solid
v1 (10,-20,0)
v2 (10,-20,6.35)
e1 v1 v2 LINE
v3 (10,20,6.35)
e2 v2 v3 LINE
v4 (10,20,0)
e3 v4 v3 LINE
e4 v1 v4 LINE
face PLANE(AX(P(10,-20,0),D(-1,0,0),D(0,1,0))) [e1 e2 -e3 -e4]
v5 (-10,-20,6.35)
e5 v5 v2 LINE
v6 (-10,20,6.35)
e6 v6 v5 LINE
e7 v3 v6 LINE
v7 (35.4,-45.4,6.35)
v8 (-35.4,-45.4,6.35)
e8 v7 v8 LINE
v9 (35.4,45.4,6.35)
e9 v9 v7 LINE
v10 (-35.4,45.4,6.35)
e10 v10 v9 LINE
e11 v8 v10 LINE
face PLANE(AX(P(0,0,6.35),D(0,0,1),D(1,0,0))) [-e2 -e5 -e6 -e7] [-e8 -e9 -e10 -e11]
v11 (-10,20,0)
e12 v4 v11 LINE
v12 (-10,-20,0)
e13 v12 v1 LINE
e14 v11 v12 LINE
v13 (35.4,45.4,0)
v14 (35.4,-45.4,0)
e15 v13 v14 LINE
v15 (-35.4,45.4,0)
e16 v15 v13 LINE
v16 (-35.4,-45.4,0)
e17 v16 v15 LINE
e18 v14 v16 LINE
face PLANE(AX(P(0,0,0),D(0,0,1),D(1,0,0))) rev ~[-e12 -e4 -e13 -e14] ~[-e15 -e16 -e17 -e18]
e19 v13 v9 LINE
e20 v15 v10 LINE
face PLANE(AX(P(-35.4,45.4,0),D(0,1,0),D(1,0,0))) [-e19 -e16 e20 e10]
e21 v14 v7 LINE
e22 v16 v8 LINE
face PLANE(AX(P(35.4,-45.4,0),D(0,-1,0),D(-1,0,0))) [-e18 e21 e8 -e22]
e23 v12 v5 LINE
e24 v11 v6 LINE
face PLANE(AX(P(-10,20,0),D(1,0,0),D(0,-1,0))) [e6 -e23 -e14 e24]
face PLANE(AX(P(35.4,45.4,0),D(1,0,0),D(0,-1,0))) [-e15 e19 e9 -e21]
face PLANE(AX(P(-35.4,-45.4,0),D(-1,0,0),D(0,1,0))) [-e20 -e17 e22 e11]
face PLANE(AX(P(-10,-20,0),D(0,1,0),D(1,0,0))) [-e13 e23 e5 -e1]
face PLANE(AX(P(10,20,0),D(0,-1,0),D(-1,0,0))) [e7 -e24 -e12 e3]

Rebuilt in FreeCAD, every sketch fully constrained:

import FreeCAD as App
import Part
import Sketcher

V = App.Vector
Q = App.Units.Quantity

doc = App.newDocument("Part")
body = doc.addObject("PartDesign::Body", "Body")

# Sketch on XY plane
sketch1 = body.newObject("Sketcher::SketchObject", "Sketch")
sketch1.AttachmentSupport = (doc.getObject("XY_Plane"), [""])
sketch1.MapMode = "FlatFace"
sketch1.addGeometry([
    Part.LineSegment(V(35, 45, 0), V(-35, 45, 0)),  # 0
    Part.LineSegment(V(-35, 45, 0), V(-35, -45, 0)),  # 1
    Part.LineSegment(V(-35, -45, 0), V(35, -45, 0)),  # 2
    Part.LineSegment(V(35, -45, 0), V(35, 45, 0)),  # 3
    Part.LineSegment(V(10, -20, 0), V(-10, -20, 0)),  # 4
    Part.LineSegment(V(-10, -20, 0), V(-10, 20, 0)),  # 5
    Part.LineSegment(V(-10, 20, 0), V(10, 20, 0)),  # 6
    Part.LineSegment(V(10, 20, 0), V(10, -20, 0)),  # 7
], False)
sketch1.addConstraint([
    Sketcher.Constraint("Coincident", 0, 2, 1, 1),
    Sketcher.Constraint("Coincident", 1, 2, 2, 1),
    Sketcher.Constraint("Coincident", 2, 2, 3, 1),
    Sketcher.Constraint("Coincident", 3, 2, 0, 1),
    Sketcher.Constraint("Coincident", 4, 2, 5, 1),
    Sketcher.Constraint("Coincident", 5, 2, 6, 1),
    Sketcher.Constraint("Coincident", 6, 2, 7, 1),
    Sketcher.Constraint("Coincident", 7, 2, 4, 1),
    Sketcher.Constraint("Horizontal", 0),
    Sketcher.Constraint("Vertical", 1),
    Sketcher.Constraint("Horizontal", 2),
    Sketcher.Constraint("Vertical", 3),
    Sketcher.Constraint("Horizontal", 4),
    Sketcher.Constraint("Vertical", 5),
    Sketcher.Constraint("Horizontal", 6),
    Sketcher.Constraint("Vertical", 7),
    Sketcher.Constraint("Symmetric", 0, 2, 2, 2, -1, 1),
    Sketcher.Constraint("Symmetric", 4, 2, 6, 2, -1, 1),
    Sketcher.Constraint("DistanceX", 1, 2, 4, 2, Q("1 in")),
    Sketcher.Constraint("DistanceY", 1, 2, 4, 2, Q("1 in")),
    Sketcher.Constraint("DistanceX", 4, 2, 4, 1, Q("0.7874 in")),
    Sketcher.Constraint("DistanceY", 5, 1, 5, 2, Q("1.5748 in")),
])
pad1 = body.newObject("PartDesign::Pad", "Pad")
pad1.Profile = sketch1
pad1.Length = Q("0.25 in")

doc.recompute()
